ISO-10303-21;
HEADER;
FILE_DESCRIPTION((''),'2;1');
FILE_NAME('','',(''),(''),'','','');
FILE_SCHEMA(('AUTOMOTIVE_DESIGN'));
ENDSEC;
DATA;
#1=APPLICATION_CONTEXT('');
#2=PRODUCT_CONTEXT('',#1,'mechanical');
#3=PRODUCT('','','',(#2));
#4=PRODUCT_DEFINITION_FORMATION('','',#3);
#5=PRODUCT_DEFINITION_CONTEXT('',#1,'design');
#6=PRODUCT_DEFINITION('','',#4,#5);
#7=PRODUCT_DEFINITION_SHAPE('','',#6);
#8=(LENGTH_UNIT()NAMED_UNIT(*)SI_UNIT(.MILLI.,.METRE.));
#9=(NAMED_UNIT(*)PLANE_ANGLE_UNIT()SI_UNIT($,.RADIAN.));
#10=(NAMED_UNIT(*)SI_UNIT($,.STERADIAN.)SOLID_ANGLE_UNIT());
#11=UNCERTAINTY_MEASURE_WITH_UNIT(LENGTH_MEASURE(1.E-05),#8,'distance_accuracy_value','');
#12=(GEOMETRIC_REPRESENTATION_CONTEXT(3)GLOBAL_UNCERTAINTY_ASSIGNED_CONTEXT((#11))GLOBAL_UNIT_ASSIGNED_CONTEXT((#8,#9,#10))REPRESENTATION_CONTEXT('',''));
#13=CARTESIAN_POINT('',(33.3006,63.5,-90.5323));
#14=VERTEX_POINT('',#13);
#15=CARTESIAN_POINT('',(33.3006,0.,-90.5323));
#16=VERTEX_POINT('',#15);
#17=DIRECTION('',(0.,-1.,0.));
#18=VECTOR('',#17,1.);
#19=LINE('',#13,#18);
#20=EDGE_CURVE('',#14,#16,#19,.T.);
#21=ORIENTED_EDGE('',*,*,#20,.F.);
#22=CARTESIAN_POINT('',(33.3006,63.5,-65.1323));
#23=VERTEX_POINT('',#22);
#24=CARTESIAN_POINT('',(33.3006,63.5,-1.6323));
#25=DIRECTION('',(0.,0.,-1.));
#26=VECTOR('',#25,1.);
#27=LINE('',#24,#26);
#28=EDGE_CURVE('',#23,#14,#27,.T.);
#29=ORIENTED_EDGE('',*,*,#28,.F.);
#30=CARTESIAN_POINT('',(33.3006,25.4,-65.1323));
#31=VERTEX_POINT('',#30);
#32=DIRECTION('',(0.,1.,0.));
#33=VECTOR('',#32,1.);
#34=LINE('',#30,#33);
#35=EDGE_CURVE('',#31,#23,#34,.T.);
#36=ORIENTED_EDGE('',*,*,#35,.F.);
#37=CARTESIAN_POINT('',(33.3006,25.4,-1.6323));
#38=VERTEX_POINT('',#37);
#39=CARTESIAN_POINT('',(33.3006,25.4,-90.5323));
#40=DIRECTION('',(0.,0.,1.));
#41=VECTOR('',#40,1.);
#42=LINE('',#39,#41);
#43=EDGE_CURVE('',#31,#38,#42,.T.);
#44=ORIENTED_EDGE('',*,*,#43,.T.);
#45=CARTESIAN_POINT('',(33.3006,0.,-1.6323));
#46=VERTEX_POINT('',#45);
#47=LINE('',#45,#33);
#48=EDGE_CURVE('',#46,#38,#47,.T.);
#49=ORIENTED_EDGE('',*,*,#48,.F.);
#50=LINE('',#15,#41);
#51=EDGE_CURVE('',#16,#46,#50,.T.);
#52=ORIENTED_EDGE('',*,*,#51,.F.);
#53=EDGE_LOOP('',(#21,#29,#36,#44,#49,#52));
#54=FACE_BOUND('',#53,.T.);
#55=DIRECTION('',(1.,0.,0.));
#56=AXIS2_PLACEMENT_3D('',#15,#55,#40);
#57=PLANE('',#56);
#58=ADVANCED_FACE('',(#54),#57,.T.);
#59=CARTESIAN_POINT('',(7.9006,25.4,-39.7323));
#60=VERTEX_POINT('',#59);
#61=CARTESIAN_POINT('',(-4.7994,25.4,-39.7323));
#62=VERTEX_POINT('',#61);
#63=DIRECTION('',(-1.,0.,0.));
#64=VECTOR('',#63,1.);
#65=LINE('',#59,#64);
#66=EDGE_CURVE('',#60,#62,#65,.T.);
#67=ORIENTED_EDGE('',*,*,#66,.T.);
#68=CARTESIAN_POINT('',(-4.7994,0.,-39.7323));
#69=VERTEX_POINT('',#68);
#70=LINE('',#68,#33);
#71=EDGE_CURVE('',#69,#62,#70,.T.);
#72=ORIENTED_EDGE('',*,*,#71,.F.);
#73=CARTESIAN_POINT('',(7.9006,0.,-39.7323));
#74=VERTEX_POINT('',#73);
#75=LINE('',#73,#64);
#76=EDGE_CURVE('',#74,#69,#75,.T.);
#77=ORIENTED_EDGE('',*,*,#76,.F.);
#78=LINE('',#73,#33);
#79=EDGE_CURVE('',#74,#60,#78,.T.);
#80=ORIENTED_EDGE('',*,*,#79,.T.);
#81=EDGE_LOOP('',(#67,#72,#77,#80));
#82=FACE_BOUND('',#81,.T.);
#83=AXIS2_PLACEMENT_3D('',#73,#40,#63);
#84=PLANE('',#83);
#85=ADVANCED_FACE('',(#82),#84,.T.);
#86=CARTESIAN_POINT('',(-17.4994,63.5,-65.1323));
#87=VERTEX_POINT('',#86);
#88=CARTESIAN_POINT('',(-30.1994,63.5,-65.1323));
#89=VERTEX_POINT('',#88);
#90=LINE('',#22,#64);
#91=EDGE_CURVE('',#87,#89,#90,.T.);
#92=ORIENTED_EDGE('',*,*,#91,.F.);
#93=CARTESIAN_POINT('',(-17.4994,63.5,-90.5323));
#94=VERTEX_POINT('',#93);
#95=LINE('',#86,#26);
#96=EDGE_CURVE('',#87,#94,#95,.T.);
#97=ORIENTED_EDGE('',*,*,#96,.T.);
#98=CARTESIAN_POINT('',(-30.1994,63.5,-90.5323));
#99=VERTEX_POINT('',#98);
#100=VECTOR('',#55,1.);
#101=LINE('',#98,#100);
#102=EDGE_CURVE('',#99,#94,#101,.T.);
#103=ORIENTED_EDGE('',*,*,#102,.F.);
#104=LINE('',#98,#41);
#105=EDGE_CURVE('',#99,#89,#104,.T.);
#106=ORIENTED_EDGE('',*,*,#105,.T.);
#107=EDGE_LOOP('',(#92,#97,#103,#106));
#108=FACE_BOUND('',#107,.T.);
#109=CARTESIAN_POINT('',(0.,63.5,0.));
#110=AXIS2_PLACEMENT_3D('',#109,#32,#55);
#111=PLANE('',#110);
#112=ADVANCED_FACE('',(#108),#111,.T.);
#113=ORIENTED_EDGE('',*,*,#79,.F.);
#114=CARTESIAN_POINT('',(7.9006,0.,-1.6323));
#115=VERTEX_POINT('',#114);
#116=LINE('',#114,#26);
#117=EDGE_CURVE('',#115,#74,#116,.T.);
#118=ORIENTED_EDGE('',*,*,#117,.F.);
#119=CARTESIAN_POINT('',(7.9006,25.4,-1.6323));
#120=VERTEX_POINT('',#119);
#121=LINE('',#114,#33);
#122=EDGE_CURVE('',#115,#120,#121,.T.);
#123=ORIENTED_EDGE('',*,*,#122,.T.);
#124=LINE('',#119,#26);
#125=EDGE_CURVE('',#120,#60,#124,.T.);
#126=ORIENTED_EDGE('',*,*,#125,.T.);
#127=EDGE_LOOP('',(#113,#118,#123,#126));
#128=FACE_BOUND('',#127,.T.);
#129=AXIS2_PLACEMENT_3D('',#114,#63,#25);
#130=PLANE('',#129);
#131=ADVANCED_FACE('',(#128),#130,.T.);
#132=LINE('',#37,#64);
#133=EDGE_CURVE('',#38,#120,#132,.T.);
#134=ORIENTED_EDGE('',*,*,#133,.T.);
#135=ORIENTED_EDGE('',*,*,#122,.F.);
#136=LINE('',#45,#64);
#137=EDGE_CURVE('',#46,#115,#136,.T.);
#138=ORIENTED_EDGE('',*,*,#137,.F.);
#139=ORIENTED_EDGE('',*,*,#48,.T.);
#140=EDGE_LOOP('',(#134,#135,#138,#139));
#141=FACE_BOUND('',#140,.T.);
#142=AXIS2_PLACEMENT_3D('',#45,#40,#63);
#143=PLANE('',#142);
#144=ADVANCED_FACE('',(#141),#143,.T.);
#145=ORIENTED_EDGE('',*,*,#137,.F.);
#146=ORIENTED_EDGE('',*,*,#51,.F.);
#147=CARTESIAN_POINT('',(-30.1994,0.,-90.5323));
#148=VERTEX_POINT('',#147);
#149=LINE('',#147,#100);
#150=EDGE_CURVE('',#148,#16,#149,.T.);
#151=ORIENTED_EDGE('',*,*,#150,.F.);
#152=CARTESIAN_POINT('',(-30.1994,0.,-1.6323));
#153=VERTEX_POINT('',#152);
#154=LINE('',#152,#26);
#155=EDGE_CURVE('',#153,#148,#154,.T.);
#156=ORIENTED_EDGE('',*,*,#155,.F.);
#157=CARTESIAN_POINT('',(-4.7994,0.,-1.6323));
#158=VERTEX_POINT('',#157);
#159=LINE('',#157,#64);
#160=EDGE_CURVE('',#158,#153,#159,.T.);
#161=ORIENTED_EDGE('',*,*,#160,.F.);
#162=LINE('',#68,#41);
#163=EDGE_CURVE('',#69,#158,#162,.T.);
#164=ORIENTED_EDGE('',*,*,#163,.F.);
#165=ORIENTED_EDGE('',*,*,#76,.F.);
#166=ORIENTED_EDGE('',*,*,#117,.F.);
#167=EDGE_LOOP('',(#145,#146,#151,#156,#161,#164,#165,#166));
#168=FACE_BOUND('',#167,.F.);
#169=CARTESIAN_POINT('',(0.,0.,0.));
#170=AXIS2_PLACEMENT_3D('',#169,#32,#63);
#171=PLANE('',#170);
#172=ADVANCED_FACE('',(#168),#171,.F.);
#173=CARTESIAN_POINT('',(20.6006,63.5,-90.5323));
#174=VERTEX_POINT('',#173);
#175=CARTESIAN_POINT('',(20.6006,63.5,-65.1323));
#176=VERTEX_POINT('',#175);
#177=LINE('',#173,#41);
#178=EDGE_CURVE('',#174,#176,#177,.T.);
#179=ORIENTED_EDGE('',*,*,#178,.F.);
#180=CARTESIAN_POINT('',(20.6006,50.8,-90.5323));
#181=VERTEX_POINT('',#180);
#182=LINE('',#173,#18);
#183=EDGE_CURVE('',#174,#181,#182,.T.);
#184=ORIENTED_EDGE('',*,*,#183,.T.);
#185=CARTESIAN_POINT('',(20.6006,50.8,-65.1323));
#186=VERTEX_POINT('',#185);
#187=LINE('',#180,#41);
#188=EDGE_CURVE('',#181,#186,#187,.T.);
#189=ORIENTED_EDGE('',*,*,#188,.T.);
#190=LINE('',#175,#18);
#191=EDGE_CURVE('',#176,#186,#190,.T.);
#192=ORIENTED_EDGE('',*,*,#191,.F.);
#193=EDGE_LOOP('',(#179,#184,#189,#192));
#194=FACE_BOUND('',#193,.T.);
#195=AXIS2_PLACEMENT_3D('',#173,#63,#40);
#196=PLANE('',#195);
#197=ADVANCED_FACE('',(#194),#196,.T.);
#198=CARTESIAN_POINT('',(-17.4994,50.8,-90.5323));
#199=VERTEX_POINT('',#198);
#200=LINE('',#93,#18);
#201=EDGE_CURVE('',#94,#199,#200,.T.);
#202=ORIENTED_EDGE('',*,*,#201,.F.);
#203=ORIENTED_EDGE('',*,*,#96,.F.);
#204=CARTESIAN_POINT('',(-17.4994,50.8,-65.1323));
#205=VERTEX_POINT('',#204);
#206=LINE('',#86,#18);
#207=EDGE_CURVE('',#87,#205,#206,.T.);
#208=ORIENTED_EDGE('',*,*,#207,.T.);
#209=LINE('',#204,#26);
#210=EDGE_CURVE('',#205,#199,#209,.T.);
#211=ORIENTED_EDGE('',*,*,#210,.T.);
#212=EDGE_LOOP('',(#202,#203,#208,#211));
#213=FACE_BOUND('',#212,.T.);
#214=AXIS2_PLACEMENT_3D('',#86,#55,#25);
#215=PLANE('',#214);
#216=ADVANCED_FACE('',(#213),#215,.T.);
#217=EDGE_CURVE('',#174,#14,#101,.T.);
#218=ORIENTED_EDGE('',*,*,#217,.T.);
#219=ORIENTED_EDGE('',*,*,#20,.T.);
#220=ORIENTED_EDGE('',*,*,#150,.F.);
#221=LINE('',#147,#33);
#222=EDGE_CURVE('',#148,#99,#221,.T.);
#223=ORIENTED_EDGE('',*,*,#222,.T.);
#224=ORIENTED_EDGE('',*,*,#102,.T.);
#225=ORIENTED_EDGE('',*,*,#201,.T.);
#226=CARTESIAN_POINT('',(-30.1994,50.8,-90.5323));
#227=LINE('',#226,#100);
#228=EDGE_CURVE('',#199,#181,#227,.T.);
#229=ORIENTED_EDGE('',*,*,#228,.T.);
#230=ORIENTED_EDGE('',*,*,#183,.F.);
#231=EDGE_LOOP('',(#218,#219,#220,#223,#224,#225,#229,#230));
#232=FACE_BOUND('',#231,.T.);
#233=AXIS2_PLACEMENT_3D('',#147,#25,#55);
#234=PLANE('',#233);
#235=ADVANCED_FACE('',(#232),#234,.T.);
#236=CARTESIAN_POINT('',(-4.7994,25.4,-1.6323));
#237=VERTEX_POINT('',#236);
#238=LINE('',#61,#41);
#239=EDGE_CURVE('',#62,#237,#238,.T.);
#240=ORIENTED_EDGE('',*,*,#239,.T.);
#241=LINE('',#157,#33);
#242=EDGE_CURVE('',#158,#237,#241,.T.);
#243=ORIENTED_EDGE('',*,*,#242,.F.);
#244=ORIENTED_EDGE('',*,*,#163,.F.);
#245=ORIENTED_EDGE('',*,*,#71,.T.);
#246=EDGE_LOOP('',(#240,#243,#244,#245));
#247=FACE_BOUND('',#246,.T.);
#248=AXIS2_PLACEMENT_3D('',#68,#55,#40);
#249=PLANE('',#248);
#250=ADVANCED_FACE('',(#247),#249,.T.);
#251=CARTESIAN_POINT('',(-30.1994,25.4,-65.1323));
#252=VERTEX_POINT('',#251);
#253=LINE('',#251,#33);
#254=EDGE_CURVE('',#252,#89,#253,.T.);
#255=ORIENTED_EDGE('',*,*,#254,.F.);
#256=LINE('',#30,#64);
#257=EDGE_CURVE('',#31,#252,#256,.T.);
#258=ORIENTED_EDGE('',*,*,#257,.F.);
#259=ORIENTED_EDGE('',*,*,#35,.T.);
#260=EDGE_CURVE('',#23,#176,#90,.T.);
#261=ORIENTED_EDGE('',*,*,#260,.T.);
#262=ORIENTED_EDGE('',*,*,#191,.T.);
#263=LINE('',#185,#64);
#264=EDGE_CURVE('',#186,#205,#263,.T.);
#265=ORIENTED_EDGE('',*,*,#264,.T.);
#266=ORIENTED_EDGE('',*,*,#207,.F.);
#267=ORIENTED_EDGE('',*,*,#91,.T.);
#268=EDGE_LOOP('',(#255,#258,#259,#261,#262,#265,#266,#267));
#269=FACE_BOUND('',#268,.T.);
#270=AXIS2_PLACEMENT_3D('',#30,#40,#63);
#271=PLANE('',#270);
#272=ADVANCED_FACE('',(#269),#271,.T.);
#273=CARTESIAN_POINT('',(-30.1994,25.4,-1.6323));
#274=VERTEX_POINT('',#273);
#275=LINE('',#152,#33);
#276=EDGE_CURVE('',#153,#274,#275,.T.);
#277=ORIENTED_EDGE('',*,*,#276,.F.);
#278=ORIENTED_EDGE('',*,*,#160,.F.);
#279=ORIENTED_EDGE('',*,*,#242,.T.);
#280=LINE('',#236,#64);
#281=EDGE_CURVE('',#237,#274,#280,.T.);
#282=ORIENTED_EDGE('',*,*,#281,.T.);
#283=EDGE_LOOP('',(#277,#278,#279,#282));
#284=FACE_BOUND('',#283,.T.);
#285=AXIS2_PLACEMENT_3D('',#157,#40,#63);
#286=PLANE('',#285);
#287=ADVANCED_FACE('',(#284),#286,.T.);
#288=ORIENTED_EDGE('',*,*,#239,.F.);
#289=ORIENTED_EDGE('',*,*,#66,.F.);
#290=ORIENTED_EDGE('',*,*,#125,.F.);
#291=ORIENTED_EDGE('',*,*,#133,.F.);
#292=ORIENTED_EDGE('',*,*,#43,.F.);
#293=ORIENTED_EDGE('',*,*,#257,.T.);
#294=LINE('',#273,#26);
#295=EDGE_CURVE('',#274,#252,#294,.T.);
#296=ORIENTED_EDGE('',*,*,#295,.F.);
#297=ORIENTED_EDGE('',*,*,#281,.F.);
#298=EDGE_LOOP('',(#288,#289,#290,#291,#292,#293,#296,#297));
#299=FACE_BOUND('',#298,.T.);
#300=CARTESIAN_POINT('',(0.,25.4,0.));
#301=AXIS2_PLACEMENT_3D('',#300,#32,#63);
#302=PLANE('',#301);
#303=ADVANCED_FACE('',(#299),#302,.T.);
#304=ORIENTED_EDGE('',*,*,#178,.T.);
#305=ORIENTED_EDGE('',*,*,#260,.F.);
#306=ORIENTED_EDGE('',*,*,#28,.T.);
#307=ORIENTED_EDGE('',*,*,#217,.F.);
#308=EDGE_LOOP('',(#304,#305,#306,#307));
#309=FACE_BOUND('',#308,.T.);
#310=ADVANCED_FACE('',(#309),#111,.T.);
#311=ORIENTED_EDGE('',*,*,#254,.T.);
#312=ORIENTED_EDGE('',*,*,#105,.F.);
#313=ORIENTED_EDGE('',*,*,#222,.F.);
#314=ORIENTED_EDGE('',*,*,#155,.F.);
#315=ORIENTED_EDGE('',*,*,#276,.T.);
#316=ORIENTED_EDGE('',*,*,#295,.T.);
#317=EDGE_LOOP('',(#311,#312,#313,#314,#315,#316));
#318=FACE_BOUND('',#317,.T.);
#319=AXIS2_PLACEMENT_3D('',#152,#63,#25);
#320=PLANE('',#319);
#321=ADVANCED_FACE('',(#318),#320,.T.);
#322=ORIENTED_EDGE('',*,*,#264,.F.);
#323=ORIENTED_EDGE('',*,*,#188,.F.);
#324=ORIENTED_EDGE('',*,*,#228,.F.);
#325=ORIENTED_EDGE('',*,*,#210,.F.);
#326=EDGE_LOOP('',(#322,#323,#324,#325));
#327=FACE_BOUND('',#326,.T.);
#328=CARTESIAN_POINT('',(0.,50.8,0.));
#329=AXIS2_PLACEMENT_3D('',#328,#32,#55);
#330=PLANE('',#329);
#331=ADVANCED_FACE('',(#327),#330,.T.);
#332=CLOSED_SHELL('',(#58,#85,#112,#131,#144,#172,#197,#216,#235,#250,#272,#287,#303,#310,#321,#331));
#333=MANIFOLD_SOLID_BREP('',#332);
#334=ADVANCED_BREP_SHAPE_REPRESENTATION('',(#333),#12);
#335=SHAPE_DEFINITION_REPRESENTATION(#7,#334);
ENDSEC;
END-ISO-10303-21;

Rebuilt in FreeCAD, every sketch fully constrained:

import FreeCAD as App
import Part
import Sketcher
from FreeCAD import Vector
Q = App.Units.Quantity


def add_polygon(sketch, points):
    """Adds a closed chain of lines whose ends are joined by coincident constraints."""
    first, n = sketch.GeometryCount, len(points)
    for a, b in zip(points, points[1:] + points[:1]):
        sketch.addGeometry(Part.LineSegment(App.Vector(*a, 0), App.Vector(*b, 0)), False)
    for i in range(n):
        sketch.addConstraint(Sketcher.Constraint("Coincident", first + i, 2, first + (i + 1) % n, 1))

doc = App.newDocument("Part")
params = doc.addObject("Spreadsheet::Sheet", "Params")
for row, (alias, value) in enumerate([
    ("sketch1_width", "1 in"),
    ("sketch1_width2", "2.5 in"),
    ("sketch1_height", "3.5 in"),
    ("sketch1_height2", "1.5 in"),
    ("pad1_length", "1 in"),
    ("sketch2_height", "1 in"),
    ("sketch2_width", "2.5 in"),
    ("pad2_length", "1.5 in"),
    ("sketch3_height", "1 in"),
    ("sketch3_width", "1.5 in"),
    ("pocket1_length", "0.5 in"),
], start=1):
    params.set(f"A{row}", alias)
    params.set(f"B{row}", "=" + value)
    params.setAlias(f"B{row}", alias)

body = doc.addObject("PartDesign::Body", "Body")

# Sketch on XZ plane
sketch1 = body.newObject("Sketcher::SketchObject", "Sketch")
sketch1.AttachmentSupport = (doc.getObject("XZ_Plane"), [""])
sketch1.MapMode = "FlatFace"
add_polygon(sketch1, [(33, -91), (-30, -91), (-30, -2), (-5, -2), (-5, -40), (8, -40), (8, -2), (33, -2)])  # lines 0-7
sketch1.addConstraint([
    Sketcher.Constraint("Horizontal", 0),
    Sketcher.Constraint("Vertical", 1),
    Sketcher.Constraint("Horizontal", 2),
    Sketcher.Constraint("Vertical", 3),
    Sketcher.Constraint("Horizontal", 4),
    Sketcher.Constraint("Vertical", 5),
    Sketcher.Constraint("Horizontal", 6),
    Sketcher.Constraint("Vertical", 7),
    Sketcher.Constraint("Horizontal", 2, 2, 5, 2),
    Sketcher.Constraint("Equal", 2, 6),
    Sketcher.Constraint("DistanceX", 2, 1, 2, 2, Q("1 in")),
    Sketcher.Constraint("DistanceX", 0, 2, 0, 1, Q("2.5 in")),
    Sketcher.Constraint("DistanceY", 1, 1, 1, 2, Q("3.5 in")),
    Sketcher.Constraint("DistanceY", 3, 2, 3, 1, Q("1.5 in")),
    Sketcher.Constraint("DistanceX", 0, 2, -1, 1, 30.1994),
    Sketcher.Constraint("DistanceY", 0, 2, -1, 1, 90.5323),
])
sketch1.setExpression("Constraints[18]", "Params.sketch1_width")
sketch1.setExpression("Constraints[19]", "Params.sketch1_width2")
sketch1.setExpression("Constraints[20]", "Params.sketch1_height")
sketch1.setExpression("Constraints[21]", "Params.sketch1_height2")
pad1 = body.newObject("PartDesign::Pad", "Pad")
pad1.Profile = sketch1
pad1.setExpression("Length", "Params.pad1_length")
pad1.Reversed = True

# Sketch on XZ plane
sketch2 = body.newObject("Sketcher::SketchObject", "Sketch001")
sketch2.AttachmentSupport = (doc.getObject("XZ_Plane"), [""])
sketch2.MapMode = "FlatFace"
sketch2.AttachmentOffset = App.Placement(Vector(0, 0, -1 * 25.4), App.Rotation())
add_polygon(sketch2, [(33, -91), (-30, -91), (-30, -65), (33, -65)])  # lines 0-3
sketch2.addConstraint([
    Sketcher.Constraint("Horizontal", 0),
    Sketcher.Constraint("Vertical", 1),
    Sketcher.Constraint("Horizontal", 2),
    Sketcher.Constraint("Vertical", 3),
    Sketcher.Constraint("DistanceY", 1, 1, 1, 2, Q("1 in")),
    Sketcher.Constraint("DistanceX", 0, 2, 0, 1, Q("2.5 in")),
    Sketcher.Constraint("DistanceX", 0, 2, -1, 1, 30.1994),
    Sketcher.Constraint("DistanceY", 0, 2, -1, 1, 90.5323),
])
sketch2.setExpression("Constraints[8]", "Params.sketch2_height")
sketch2.setExpression("Constraints[9]", "Params.sketch2_width")
pad2 = body.newObject("PartDesign::Pad", "Pad001")
pad2.Profile = sketch2
pad2.setExpression("Length", "Params.pad2_length")
pad2.Reversed = True

# Sketch on XZ plane
sketch3 = body.newObject("Sketcher::SketchObject", "Sketch002")
sketch3.AttachmentSupport = (doc.getObject("XZ_Plane"), [""])
sketch3.MapMode = "FlatFace"
sketch3.AttachmentOffset = App.Placement(Vector(0, 0, -2.5 * 25.4), App.Rotation())
add_polygon(sketch3, [(21, -91), (-17, -91), (-17, -65), (21, -65)])  # lines 0-3
sketch3.addConstraint([
    Sketcher.Constraint("Horizontal", 0),
    Sketcher.Constraint("Vertical", 1),
    Sketcher.Constraint("Horizontal", 2),
    Sketcher.Constraint("Vertical", 3),
    Sketcher.Constraint("DistanceY", 1, 1, 1, 2, Q("1 in")),
    Sketcher.Constraint("DistanceX", 0, 2, 0, 1, Q("1.5 in")),
    Sketcher.Constraint("DistanceX", 0, 2, -1, 1, 17.4994),
    Sketcher.Constraint("DistanceY", 0, 2, -1, 1, 90.5323),
])
sketch3.setExpression("Constraints[8]", "Params.sketch3_height")
sketch3.setExpression("Constraints[9]", "Params.sketch3_width")
pocket1 = body.newObject("PartDesign::Pocket", "Pocket")
pocket1.Profile = sketch3
pocket1.setExpression("Length", "Params.pocket1_length")
pocket1.Reversed = True

doc.recompute()
